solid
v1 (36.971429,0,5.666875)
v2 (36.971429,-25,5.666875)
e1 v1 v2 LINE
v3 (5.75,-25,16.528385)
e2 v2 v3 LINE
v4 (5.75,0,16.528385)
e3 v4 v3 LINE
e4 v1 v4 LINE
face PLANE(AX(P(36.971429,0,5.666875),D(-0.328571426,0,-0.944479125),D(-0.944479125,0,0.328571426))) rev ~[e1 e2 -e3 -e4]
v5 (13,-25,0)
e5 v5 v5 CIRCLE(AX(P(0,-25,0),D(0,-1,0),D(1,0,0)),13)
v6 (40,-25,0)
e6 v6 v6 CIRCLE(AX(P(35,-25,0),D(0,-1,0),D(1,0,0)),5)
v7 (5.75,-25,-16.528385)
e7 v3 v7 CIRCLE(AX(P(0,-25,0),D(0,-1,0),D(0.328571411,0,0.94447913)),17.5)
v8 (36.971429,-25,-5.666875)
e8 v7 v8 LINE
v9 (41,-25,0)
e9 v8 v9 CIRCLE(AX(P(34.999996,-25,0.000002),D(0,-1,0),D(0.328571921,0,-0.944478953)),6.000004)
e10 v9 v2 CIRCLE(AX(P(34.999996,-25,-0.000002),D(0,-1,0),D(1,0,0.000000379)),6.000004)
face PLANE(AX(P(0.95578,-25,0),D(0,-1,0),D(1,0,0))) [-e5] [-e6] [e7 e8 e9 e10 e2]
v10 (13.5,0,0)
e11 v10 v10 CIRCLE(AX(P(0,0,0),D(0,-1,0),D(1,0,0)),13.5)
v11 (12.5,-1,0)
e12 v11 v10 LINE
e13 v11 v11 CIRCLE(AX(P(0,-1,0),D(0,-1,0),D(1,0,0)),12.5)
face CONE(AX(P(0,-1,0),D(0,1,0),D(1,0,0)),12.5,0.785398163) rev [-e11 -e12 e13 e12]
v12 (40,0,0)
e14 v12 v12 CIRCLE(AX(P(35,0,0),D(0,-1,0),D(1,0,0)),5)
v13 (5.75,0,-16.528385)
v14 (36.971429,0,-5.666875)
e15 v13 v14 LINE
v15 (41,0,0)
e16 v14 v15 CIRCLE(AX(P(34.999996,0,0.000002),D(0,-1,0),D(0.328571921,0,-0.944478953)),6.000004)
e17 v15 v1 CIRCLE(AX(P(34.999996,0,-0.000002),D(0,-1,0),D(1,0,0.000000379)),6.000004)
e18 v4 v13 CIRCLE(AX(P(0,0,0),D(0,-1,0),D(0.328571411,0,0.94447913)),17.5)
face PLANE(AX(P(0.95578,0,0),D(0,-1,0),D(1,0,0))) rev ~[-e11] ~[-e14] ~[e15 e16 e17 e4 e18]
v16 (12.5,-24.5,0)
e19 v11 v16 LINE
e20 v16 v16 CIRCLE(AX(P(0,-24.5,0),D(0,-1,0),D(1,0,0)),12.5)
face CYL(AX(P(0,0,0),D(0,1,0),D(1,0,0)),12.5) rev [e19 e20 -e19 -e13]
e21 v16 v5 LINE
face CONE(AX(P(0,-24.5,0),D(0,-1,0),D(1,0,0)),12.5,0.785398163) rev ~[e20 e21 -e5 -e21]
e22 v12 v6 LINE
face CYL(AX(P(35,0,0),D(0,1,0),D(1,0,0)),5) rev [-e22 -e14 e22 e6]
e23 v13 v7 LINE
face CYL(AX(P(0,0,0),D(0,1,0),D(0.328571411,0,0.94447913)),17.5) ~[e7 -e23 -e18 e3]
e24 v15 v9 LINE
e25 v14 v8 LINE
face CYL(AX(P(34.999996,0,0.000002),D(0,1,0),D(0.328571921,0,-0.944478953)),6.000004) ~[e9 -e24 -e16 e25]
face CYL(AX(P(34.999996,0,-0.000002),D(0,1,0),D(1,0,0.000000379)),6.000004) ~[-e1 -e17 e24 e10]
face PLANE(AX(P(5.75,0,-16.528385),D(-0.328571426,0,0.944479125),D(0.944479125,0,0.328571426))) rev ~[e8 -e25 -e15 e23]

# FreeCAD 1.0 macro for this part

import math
import FreeCAD as App
import Part
import Sketcher

V = App.Vector
Q = App.Units.Quantity


def edges_at(feature, points):
    """Names of the edges that pass closest to the given points."""
    edges = feature.Shape.Edges
    near = lambda p: min(range(len(edges)), key=lambda i: edges[i].distToShape(Part.Vertex(*p))[0])
    return sorted({f"Edge{near(p) + 1}" for p in points})

doc = App.newDocument("Part")
body = doc.addObject("PartDesign::Body", "Body")

# Sketch on XZ plane
sketch1 = body.newObject("Sketcher::SketchObject", "Sketch")
sketch1.AttachmentSupport = (doc.getObject("XZ_Plane"), [""])
sketch1.MapMode = "FlatFace"
sketch1.addGeometry(Part.ArcOfCircle(Part.Circle(V(0, 0, 0), V(0, 0, 1), 18), math.radians(71), math.radians(289)), False)
sketch1.addGeometry(Part.LineSegment(V(6, -17, 0), V(37, -6, 0)), False)
sketch1.addGeometry(Part.ArcOfCircle(Part.Circle(V(35, 0, 0), V(0, 0, 1), 6), math.radians(-71), math.radians(0)), False)
sketch1.addGeometry(Part.ArcOfCircle(Part.Circle(V(35, 0, 0), V(0, 0, 1), 6), math.radians(0), math.radians(71)), False)
sketch1.addGeometry(Part.LineSegment(V(37, 6, 0), V(6, 17, 0)), False)
sketch1.addGeometry(Part.Circle(V(0, 0, 0), V(0, 0, 1), 12), False)
sketch1.addGeometry(Part.Circle(V(35, 0, 0), V(0, 0, 1), 5), False)
sketch1.addConstraint(Sketcher.Constraint("Tangent", 0, 2, 1, 1))
sketch1.addConstraint(Sketcher.Constraint("Tangent", 1, 2, 2, 1))
sketch1.addConstraint(Sketcher.Constraint("Tangent", 2, 2, 3, 1))
sketch1.addConstraint(Sketcher.Constraint("Tangent", 3, 2, 4, 1))
sketch1.addConstraint(Sketcher.Constraint("Tangent", 4, 2, 0, 1))
sketch1.addConstraint(Sketcher.Constraint("Coincident", 0, 3, -1, 1))
sketch1.addConstraint(Sketcher.Constraint("Coincident", 5, 3, -1, 1))
sketch1.addConstraint(Sketcher.Constraint("Coincident", 6, 3, 2, 3))
sketch1.addConstraint(Sketcher.Constraint("Equal", 2, 3))
sketch1.addConstraint(Sketcher.Constraint("PointOnObject", 6, 3, -1))
sketch1.addConstraint(Sketcher.Constraint("PointOnObject", 2, 2, -1))
sketch1.addConstraint(Sketcher.Constraint("Diameter", 5, Q("25 mm")))
sketch1.addConstraint(Sketcher.Constraint("Diameter", 6, Q("10 mm")))
sketch1.addConstraint(Sketcher.Constraint("Radius", 0, Q("17.5 mm")))
sketch1.addConstraint(Sketcher.Constraint("DistanceX", -1, 1, 6, 3, Q("35 mm")))
sketch1.addConstraint(Sketcher.Constraint("DistanceX", -1, 1, 2, 2, Q("41 mm")))
pad1 = body.newObject("PartDesign::Pad", "Pad")
pad1.Profile = sketch1
pad1.Length = 25
doc.recompute()

chamfer = body.newObject("PartDesign::Chamfer", "Chamfer")
chamfer.Base = (pad1, edges_at(pad1, [(-12.5, -25, 0)]))
chamfer.Size = 0.5
doc.recompute()

chamfer2 = body.newObject("PartDesign::Chamfer", "Chamfer001")
chamfer2.Base = (chamfer, edges_at(chamfer, [(-12.5, 0, 0)]))
chamfer2.Size = 1

doc.recompute()
